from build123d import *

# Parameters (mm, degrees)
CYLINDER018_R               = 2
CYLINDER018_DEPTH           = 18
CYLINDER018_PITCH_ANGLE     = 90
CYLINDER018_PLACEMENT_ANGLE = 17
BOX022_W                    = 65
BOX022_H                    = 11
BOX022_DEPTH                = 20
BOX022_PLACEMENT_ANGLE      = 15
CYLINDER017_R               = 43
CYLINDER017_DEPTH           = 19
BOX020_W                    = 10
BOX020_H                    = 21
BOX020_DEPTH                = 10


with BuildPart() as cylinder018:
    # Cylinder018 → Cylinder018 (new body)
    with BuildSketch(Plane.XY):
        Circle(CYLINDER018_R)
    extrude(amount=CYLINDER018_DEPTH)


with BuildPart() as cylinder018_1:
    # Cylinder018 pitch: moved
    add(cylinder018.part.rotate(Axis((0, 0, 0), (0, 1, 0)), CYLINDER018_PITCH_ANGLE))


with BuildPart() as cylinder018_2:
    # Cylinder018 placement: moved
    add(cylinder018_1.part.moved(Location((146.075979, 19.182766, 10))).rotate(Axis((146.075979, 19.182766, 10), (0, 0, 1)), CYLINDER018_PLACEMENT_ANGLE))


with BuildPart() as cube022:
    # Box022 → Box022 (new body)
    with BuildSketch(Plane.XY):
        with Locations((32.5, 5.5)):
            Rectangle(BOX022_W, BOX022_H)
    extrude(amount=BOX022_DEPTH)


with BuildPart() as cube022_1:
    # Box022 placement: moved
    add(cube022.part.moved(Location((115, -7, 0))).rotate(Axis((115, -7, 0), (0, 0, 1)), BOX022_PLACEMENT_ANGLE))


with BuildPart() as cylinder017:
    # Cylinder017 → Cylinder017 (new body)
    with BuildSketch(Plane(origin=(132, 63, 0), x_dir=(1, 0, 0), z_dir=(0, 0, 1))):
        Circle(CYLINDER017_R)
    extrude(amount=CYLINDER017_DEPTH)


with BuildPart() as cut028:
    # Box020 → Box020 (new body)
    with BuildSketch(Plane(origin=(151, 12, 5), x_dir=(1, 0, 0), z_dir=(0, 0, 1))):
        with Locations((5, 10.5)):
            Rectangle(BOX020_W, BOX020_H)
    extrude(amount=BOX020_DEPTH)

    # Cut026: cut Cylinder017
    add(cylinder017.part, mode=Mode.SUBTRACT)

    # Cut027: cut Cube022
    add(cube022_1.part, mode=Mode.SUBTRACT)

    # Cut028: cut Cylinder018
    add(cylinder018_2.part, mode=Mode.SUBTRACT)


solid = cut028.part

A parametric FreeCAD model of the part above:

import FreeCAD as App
import Part
import Sketcher
Q = App.Units.Quantity


def add_polygon(sketch, points):
    """Adds a closed chain of lines whose ends are joined by coincident constraints."""
    first, n = sketch.GeometryCount, len(points)
    for a, b in zip(points, points[1:] + points[:1]):
        sketch.addGeometry(Part.LineSegment(App.Vector(*a, 0), App.Vector(*b, 0)), False)
    for i in range(n):
        sketch.addConstraint(Sketcher.Constraint("Coincident", first + i, 2, first + (i + 1) % n, 1))

doc = App.newDocument("Part")
body = doc.addObject("PartDesign::Body", "Body")

# Sketch on XY plane
sketch1 = body.newObject("Sketcher::SketchObject", "Sketch")
sketch1.AttachmentSupport = (doc.getObject("XY_Plane"), [""])
sketch1.MapMode = "FlatFace"
sketch1.addGeometry(Part.Circle(App.Vector(0, 0, 0), App.Vector(0, 0, 1), 2), False)
sketch1.addConstraint([
    Sketcher.Constraint("Coincident", 0, 3, -1, 1),
    Sketcher.Constraint("Diameter", 0, Q("4 mm")),
])
pad1 = body.newObject("PartDesign::Pad", "Pad")
pad1.Profile = sketch1
pad1.Length = 18
body2 = doc.addObject("PartDesign::Body", "Body001")
doc.recompute()

body.Placement = App.Placement(App.Vector(0, 0, 0), App.Rotation(App.Vector(0, 1, 0), 90))
boolean = body2.newObject("PartDesign::Boolean", "Boolean")
boolean.Type = "Fuse"
boolean.addObjects([body])
body3 = doc.addObject("PartDesign::Body", "Body002")
doc.recompute()

body2.Placement = App.Placement(App.Vector(146.075979, 19.182766, 10), App.Rotation(App.Vector(0, 0, 1), 17))
boolean2 = body3.newObject("PartDesign::Boolean", "Boolean001")
boolean2.Type = "Fuse"
boolean2.addObjects([body2])
body4 = doc.addObject("PartDesign::Body", "Body003")

# Sketch on XY plane
sketch2 = body4.newObject("Sketcher::SketchObject", "Sketch001")
sketch2.AttachmentSupport = (doc.getObject("XY_Plane003"), [""])
sketch2.MapMode = "FlatFace"
add_polygon(sketch2, [(0, 11), (0, 0), (65, 0), (65, 11)])  # lines 0-3
sketch2.addConstraint([
    Sketcher.Constraint("Vertical", 0),
    Sketcher.Constraint("Horizontal", 1),
    Sketcher.Constraint("Vertical", 2),
    Sketcher.Constraint("Horizontal", 3),
    Sketcher.Constraint("Coincident", 0, 2, -1, 1),
    Sketcher.Constraint("DistanceX", 1, 1, 1, 2, Q("65 mm")),
    Sketcher.Constraint("DistanceY", 0, 2, 0, 1, Q("11 mm")),
])
pad2 = body4.newObject("PartDesign::Pad", "Pad001")
pad2.Profile = sketch2
pad2.Length = 20
body5 = doc.addObject("PartDesign::Body", "Body004")
doc.recompute()

body4.Placement = App.Placement(App.Vector(115, -7, 0), App.Rotation(App.Vector(0, 0, 1), 15))
boolean3 = body5.newObject("PartDesign::Boolean", "Boolean002")
boolean3.Type = "Fuse"
boolean3.addObjects([body4])
body6 = doc.addObject("PartDesign::Body", "Body005")

# Sketch on XY plane
sketch3 = body6.newObject("Sketcher::SketchObject", "Sketch002")
sketch3.AttachmentSupport = (doc.getObject("XY_Plane005"), [""])
sketch3.MapMode = "FlatFace"
sketch3.addGeometry(Part.Circle(App.Vector(132, 63, 0), App.Vector(0, 0, 1), 43), False)
sketch3.addConstraint([
    Sketcher.Constraint("Diameter", 0, Q("86 mm")),
    Sketcher.Constraint("DistanceX", -1, 1, 0, 3, Q("132 mm")),
    Sketcher.Constraint("DistanceY", -1, 1, 0, 3, Q("63 mm")),
])
pad3 = body6.newObject("PartDesign::Pad", "Pad002")
pad3.Profile = sketch3
pad3.Length = 19
body7 = doc.addObject("PartDesign::Body", "Body006")

# Sketch on XY plane
sketch4 = body7.newObject("Sketcher::SketchObject", "Sketch003")
sketch4.AttachmentSupport = (doc.getObject("XY_Plane006"), [""])
sketch4.MapMode = "FlatFace"
sketch4.AttachmentOffset = App.Placement(App.Vector(0, 0, 5), App.Rotation())
add_polygon(sketch4, [(151, 33), (151, 12), (161, 12), (161, 33)])  # lines 0-3
sketch4.addConstraint([
    Sketcher.Constraint("Vertical", 0),
    Sketcher.Constraint("Horizontal", 1),
    Sketcher.Constraint("Vertical", 2),
    Sketcher.Constraint("Horizontal", 3),
    Sketcher.Constraint("DistanceX", 1, 1, 1, 2, Q("10 mm")),
    Sketcher.Constraint("DistanceY", 0, 2, 0, 1, Q("21 mm")),
    Sketcher.Constraint("DistanceX", -1, 1, 0, 2, Q("151 mm")),
    Sketcher.Constraint("DistanceY", -1, 1, 0, 2, Q("12 mm")),
])
pad4 = body7.newObject("PartDesign::Pad", "Pad003")
pad4.Profile = sketch4
pad4.Length = 10
doc.recompute()

boolean4 = body7.newObject("PartDesign::Boolean", "Boolean003")
boolean4.Type = "Cut"
boolean4.addObjects([body6])
doc.recompute()

boolean5 = body7.newObject("PartDesign::Boolean", "Boolean004")
boolean5.Type = "Cut"
boolean5.addObjects([body5])
doc.recompute()

boolean6 = body7.newObject("PartDesign::Boolean", "Boolean005")
boolean6.Type = "Cut"
boolean6.addObjects([body3])

doc.recompute()
